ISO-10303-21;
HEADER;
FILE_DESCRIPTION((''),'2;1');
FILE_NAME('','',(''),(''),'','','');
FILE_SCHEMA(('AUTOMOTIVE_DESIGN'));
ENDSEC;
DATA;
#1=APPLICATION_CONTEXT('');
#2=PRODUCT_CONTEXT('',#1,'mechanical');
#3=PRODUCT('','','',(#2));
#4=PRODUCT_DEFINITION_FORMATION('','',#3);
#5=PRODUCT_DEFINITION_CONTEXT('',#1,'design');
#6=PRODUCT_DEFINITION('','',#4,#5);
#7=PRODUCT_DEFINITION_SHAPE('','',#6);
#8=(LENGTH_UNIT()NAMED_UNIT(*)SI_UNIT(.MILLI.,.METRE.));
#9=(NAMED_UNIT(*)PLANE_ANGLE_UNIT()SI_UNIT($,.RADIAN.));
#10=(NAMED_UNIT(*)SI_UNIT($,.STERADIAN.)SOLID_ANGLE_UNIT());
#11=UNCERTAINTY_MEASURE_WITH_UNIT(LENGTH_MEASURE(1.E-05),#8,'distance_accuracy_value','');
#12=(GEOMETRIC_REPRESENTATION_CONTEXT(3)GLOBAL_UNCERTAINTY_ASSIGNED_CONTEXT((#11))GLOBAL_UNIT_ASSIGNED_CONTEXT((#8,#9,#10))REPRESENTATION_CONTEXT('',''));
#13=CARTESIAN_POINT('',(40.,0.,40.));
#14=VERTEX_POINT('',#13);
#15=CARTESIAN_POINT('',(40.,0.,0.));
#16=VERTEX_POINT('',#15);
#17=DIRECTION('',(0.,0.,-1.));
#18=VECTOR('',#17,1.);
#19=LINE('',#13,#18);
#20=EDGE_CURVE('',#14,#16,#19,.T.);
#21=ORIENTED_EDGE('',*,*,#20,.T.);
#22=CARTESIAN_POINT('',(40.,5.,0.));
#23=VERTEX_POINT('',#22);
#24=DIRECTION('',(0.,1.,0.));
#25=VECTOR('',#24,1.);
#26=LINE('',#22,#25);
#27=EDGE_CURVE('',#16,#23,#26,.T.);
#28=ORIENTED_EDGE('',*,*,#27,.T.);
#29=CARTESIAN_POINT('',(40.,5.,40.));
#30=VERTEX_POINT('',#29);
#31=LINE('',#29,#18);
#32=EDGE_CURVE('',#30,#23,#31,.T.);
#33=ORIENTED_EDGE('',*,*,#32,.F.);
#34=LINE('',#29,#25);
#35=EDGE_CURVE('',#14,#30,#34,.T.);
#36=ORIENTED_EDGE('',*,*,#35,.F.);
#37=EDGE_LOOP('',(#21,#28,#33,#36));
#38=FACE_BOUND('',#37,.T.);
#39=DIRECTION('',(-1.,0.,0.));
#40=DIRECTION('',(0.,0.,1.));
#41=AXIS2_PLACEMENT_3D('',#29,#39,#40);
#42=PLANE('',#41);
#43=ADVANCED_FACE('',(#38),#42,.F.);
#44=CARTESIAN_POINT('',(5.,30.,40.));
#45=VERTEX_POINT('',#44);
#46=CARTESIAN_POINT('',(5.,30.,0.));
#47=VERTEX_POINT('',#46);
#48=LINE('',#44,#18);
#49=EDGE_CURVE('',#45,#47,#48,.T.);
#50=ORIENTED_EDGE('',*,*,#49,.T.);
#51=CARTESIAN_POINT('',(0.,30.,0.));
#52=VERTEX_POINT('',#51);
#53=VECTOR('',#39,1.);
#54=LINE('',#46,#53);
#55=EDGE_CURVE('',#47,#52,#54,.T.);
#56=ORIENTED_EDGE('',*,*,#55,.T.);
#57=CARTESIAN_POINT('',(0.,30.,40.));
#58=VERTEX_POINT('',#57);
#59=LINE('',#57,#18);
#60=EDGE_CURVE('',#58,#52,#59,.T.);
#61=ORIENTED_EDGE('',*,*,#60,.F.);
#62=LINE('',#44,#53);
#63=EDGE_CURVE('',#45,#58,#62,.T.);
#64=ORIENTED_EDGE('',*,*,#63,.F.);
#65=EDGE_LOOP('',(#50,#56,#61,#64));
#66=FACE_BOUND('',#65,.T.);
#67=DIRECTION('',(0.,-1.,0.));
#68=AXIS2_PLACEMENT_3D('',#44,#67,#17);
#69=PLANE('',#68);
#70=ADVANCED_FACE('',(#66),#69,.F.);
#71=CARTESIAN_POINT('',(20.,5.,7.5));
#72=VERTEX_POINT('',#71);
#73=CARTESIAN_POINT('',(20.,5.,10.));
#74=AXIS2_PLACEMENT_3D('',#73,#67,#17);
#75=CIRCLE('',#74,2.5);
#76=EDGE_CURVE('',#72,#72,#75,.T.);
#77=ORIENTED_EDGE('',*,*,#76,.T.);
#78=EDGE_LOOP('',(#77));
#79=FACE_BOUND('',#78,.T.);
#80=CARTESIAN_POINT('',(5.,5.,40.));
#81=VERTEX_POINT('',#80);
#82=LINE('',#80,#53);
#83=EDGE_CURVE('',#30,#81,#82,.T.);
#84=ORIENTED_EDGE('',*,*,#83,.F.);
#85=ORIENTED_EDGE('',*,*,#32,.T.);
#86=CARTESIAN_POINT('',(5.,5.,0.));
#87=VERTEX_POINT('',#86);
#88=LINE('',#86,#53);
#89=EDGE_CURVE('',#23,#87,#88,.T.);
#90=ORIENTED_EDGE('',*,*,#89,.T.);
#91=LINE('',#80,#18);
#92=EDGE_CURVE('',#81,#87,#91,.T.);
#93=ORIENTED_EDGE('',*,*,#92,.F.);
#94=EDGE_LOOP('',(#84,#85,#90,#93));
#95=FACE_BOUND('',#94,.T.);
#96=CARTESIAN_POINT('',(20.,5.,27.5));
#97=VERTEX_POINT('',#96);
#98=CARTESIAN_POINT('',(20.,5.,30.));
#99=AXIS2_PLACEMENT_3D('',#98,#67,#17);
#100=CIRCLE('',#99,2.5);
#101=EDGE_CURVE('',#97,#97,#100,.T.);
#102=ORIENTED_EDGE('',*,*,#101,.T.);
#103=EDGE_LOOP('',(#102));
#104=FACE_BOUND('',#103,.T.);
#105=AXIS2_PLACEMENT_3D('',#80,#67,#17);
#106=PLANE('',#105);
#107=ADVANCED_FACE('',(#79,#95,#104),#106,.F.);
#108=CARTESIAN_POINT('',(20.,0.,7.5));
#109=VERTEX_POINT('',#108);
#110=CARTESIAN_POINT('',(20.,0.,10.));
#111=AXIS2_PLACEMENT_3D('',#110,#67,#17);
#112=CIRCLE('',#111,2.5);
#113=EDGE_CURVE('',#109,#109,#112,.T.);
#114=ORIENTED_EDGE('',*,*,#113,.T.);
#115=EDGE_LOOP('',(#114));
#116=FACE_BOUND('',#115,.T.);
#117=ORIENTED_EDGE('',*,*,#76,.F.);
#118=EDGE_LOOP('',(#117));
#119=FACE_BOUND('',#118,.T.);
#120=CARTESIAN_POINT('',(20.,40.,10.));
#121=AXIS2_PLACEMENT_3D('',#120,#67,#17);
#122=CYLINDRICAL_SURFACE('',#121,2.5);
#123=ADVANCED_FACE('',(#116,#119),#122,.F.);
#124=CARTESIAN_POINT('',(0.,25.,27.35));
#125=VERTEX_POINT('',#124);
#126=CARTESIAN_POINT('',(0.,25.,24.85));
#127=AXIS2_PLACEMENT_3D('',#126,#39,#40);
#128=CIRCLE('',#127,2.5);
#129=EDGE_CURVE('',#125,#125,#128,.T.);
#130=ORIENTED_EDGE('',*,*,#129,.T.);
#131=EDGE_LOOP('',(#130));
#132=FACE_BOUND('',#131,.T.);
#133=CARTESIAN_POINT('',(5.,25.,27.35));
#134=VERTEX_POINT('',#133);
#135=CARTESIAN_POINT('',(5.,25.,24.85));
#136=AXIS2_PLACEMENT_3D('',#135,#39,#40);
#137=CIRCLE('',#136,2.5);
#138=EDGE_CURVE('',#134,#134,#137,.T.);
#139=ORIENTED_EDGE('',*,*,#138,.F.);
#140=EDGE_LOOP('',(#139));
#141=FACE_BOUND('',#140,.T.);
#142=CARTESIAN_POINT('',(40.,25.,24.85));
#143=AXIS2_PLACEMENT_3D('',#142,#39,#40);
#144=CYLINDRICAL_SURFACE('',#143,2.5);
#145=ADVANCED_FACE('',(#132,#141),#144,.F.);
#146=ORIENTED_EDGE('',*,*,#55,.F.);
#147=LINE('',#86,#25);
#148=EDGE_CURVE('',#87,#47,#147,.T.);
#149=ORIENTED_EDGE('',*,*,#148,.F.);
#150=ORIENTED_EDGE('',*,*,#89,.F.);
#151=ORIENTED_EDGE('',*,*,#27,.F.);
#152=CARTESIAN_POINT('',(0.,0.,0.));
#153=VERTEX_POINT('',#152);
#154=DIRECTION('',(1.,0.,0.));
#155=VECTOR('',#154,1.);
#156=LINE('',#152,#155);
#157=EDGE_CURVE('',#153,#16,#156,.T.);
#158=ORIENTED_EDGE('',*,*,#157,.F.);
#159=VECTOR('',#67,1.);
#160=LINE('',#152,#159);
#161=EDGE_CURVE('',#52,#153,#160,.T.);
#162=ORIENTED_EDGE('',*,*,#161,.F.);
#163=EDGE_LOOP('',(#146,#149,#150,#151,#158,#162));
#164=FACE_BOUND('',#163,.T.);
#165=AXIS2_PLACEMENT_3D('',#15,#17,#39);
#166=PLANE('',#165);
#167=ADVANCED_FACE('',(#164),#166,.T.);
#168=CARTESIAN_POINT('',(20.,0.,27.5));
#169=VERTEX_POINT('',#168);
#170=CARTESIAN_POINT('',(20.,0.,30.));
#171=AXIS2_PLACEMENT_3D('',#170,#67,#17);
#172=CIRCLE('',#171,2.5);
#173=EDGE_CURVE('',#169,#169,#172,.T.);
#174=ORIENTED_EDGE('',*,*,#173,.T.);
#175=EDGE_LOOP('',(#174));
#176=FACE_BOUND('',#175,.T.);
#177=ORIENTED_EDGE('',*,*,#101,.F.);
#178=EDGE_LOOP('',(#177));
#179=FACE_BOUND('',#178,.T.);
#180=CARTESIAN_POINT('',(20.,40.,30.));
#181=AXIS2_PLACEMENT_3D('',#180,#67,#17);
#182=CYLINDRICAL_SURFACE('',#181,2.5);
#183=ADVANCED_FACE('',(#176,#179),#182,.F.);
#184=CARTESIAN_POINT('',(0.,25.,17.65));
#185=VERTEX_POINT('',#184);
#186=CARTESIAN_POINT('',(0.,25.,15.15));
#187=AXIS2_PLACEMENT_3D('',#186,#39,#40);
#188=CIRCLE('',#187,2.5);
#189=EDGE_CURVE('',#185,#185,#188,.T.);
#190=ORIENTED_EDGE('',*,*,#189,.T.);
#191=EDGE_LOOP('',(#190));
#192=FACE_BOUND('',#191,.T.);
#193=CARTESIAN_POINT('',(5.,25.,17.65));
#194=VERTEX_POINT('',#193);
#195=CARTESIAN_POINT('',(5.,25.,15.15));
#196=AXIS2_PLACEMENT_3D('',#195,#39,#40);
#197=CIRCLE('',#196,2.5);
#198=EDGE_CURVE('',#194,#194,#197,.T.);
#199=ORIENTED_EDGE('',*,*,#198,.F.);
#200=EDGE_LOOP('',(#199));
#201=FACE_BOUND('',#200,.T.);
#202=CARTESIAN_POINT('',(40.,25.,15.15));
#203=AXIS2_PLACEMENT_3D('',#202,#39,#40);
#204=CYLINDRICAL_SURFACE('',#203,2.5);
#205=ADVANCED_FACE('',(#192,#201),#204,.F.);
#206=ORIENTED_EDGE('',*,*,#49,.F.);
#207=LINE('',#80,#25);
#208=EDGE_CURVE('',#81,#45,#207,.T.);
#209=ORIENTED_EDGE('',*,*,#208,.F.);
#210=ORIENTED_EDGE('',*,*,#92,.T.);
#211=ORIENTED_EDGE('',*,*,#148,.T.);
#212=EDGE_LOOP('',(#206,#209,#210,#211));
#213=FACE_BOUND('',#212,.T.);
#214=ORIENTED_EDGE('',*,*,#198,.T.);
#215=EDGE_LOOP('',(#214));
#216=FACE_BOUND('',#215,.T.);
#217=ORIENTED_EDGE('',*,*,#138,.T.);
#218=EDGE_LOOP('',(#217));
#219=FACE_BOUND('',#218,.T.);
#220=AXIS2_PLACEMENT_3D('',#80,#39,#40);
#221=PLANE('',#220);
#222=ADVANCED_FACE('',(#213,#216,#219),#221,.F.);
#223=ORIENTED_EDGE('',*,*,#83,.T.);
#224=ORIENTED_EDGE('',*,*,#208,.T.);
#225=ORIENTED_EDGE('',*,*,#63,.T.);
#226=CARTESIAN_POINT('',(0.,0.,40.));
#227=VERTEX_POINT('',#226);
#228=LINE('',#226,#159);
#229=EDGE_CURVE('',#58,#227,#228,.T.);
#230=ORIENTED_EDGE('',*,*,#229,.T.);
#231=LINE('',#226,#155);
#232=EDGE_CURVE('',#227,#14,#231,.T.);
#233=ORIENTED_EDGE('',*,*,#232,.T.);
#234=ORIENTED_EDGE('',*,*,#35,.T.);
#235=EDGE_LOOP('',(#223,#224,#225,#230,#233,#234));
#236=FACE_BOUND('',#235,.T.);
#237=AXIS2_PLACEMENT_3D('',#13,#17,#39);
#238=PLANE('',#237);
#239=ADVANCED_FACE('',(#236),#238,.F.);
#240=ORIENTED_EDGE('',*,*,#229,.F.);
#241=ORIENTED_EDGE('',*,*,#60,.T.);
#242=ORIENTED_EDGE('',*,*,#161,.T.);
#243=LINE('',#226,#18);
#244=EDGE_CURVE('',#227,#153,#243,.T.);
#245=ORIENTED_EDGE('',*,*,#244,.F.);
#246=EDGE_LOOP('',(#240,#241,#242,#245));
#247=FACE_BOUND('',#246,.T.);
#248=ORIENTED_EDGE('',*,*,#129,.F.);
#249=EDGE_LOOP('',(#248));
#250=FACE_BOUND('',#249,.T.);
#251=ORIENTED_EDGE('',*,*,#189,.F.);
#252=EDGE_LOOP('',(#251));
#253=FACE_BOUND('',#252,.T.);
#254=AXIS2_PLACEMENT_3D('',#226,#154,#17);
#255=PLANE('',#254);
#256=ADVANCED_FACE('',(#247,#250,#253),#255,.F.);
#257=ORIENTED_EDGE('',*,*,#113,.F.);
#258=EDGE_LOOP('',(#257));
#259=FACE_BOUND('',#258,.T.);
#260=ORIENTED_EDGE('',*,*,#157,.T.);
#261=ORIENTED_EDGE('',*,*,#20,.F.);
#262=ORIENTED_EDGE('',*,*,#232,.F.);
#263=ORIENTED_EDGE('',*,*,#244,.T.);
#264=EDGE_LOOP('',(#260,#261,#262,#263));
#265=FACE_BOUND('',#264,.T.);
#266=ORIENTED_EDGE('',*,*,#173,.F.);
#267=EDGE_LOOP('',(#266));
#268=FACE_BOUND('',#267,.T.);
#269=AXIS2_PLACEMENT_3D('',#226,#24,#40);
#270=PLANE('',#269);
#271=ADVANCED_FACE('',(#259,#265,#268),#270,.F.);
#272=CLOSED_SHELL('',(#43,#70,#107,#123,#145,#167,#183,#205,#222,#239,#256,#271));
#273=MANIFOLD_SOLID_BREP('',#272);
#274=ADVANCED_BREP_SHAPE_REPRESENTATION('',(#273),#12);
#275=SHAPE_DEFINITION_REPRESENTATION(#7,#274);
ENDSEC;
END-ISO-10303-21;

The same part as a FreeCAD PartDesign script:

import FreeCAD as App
import Part
import Sketcher
from FreeCAD import Vector

doc = App.newDocument("Part")
body = doc.addObject("PartDesign::Body", "Body")

# Sketch on XY plane
sketch1 = body.newObject("Sketcher::SketchObject", "Sketch")
sketch1.AttachmentSupport = (doc.getObject("XY_Plane"), [""])
sketch1.MapMode = "FlatFace"
sketch1.addGeometry([
    Part.LineSegment(Vector(0, 30, 0), Vector(0, 0, 0)),  # 0
    Part.LineSegment(Vector(0, 0, 0), Vector(40, 0, 0)),  # 1
    Part.LineSegment(Vector(40, 0, 0), Vector(40, 5, 0)),  # 2
    Part.LineSegment(Vector(40, 5, 0), Vector(5, 5, 0)),  # 3
    Part.LineSegment(Vector(5, 5, 0), Vector(5, 30, 0)),  # 4
    Part.LineSegment(Vector(5, 30, 0), Vector(0, 30, 0)),  # 5
], False)
sketch1.addConstraint([
    Sketcher.Constraint("Coincident", 0, 2, 1, 1),
    Sketcher.Constraint("Coincident", 1, 2, 2, 1),
    Sketcher.Constraint("Coincident", 2, 2, 3, 1),
    Sketcher.Constraint("Coincident", 3, 2, 4, 1),
    Sketcher.Constraint("Coincident", 4, 2, 5, 1),
    Sketcher.Constraint("Coincident", 5, 2, 0, 1),
    Sketcher.Constraint("Vertical", 0),
    Sketcher.Constraint("Horizontal", 1),
    Sketcher.Constraint("Vertical", 2),
    Sketcher.Constraint("Horizontal", 3),
    Sketcher.Constraint("Vertical", 4),
    Sketcher.Constraint("Horizontal", 5),
    Sketcher.Constraint("Coincident", 0, 2, -1, 1),
    Sketcher.Constraint("Equal", 5, 2),
    Sketcher.Constraint("DistanceX", 1, 1, 1, 2, 40.0),
    Sketcher.Constraint("DistanceX", 3, 2, 3, 1, 35.0),
    Sketcher.Constraint("DistanceY", 0, 2, 0, 1, 30.0),
])
pad1 = body.newObject("PartDesign::Pad", "Pad")
pad1.Profile = sketch1
pad1.Length = 40

# Sketch on YZ plane
sketch2 = body.newObject("Sketcher::SketchObject", "Sketch001")
sketch2.AttachmentSupport = (doc.getObject("YZ_Plane"), [""])
sketch2.MapMode = "FlatFace"
sketch2.addGeometry([
    Part.Circle(Vector(25, 24.85, 0), Vector(0, 0, 1), 2.5),
    Part.Circle(Vector(25, 15.15, 0), Vector(0, 0, 1), 2.5),
], False)
sketch2.addConstraint([
    Sketcher.Constraint("Equal", 0, 1),
    Sketcher.Constraint("Vertical", 0, 3, 1, 3),
    Sketcher.Constraint("Diameter", 0, 5.0),
    Sketcher.Constraint("DistanceX", -1, 1, 0, 3, 25.0),
    Sketcher.Constraint("DistanceY", 1, 3, 0, 3, 9.7),
    Sketcher.Constraint("DistanceY", -1, 1, 0, 3, 24.85),
])
pocket1 = body.newObject("PartDesign::Pocket", "Pocket")
pocket1.Profile = sketch2
pocket1.Length = 40
pocket1.Reversed = True

# Sketch on XZ plane
sketch3 = body.newObject("Sketcher::SketchObject", "Sketch002")
sketch3.AttachmentSupport = (doc.getObject("XZ_Plane"), [""])
sketch3.MapMode = "FlatFace"
sketch3.addGeometry([
    Part.Circle(Vector(20, 30, 0), Vector(0, 0, 1), 2.5),
    Part.Circle(Vector(20, 10, 0), Vector(0, 0, 1), 2.5),
], False)
sketch3.addConstraint([
    Sketcher.Constraint("Equal", 0, 1),
    Sketcher.Constraint("Vertical", 0, 3, 1, 3),
    Sketcher.Constraint("Diameter", 0, 5.0),
    Sketcher.Constraint("DistanceX", -1, 1, 0, 3, 20.0),
    Sketcher.Constraint("DistanceY", -1, 1, 0, 3, 30.0),
    Sketcher.Constraint("DistanceY", -1, 1, 1, 3, 10.0),
])
pocket2 = body.newObject("PartDesign::Pocket", "Pocket001")
pocket2.Profile = sketch3
pocket2.Length = 40

doc.recompute()
